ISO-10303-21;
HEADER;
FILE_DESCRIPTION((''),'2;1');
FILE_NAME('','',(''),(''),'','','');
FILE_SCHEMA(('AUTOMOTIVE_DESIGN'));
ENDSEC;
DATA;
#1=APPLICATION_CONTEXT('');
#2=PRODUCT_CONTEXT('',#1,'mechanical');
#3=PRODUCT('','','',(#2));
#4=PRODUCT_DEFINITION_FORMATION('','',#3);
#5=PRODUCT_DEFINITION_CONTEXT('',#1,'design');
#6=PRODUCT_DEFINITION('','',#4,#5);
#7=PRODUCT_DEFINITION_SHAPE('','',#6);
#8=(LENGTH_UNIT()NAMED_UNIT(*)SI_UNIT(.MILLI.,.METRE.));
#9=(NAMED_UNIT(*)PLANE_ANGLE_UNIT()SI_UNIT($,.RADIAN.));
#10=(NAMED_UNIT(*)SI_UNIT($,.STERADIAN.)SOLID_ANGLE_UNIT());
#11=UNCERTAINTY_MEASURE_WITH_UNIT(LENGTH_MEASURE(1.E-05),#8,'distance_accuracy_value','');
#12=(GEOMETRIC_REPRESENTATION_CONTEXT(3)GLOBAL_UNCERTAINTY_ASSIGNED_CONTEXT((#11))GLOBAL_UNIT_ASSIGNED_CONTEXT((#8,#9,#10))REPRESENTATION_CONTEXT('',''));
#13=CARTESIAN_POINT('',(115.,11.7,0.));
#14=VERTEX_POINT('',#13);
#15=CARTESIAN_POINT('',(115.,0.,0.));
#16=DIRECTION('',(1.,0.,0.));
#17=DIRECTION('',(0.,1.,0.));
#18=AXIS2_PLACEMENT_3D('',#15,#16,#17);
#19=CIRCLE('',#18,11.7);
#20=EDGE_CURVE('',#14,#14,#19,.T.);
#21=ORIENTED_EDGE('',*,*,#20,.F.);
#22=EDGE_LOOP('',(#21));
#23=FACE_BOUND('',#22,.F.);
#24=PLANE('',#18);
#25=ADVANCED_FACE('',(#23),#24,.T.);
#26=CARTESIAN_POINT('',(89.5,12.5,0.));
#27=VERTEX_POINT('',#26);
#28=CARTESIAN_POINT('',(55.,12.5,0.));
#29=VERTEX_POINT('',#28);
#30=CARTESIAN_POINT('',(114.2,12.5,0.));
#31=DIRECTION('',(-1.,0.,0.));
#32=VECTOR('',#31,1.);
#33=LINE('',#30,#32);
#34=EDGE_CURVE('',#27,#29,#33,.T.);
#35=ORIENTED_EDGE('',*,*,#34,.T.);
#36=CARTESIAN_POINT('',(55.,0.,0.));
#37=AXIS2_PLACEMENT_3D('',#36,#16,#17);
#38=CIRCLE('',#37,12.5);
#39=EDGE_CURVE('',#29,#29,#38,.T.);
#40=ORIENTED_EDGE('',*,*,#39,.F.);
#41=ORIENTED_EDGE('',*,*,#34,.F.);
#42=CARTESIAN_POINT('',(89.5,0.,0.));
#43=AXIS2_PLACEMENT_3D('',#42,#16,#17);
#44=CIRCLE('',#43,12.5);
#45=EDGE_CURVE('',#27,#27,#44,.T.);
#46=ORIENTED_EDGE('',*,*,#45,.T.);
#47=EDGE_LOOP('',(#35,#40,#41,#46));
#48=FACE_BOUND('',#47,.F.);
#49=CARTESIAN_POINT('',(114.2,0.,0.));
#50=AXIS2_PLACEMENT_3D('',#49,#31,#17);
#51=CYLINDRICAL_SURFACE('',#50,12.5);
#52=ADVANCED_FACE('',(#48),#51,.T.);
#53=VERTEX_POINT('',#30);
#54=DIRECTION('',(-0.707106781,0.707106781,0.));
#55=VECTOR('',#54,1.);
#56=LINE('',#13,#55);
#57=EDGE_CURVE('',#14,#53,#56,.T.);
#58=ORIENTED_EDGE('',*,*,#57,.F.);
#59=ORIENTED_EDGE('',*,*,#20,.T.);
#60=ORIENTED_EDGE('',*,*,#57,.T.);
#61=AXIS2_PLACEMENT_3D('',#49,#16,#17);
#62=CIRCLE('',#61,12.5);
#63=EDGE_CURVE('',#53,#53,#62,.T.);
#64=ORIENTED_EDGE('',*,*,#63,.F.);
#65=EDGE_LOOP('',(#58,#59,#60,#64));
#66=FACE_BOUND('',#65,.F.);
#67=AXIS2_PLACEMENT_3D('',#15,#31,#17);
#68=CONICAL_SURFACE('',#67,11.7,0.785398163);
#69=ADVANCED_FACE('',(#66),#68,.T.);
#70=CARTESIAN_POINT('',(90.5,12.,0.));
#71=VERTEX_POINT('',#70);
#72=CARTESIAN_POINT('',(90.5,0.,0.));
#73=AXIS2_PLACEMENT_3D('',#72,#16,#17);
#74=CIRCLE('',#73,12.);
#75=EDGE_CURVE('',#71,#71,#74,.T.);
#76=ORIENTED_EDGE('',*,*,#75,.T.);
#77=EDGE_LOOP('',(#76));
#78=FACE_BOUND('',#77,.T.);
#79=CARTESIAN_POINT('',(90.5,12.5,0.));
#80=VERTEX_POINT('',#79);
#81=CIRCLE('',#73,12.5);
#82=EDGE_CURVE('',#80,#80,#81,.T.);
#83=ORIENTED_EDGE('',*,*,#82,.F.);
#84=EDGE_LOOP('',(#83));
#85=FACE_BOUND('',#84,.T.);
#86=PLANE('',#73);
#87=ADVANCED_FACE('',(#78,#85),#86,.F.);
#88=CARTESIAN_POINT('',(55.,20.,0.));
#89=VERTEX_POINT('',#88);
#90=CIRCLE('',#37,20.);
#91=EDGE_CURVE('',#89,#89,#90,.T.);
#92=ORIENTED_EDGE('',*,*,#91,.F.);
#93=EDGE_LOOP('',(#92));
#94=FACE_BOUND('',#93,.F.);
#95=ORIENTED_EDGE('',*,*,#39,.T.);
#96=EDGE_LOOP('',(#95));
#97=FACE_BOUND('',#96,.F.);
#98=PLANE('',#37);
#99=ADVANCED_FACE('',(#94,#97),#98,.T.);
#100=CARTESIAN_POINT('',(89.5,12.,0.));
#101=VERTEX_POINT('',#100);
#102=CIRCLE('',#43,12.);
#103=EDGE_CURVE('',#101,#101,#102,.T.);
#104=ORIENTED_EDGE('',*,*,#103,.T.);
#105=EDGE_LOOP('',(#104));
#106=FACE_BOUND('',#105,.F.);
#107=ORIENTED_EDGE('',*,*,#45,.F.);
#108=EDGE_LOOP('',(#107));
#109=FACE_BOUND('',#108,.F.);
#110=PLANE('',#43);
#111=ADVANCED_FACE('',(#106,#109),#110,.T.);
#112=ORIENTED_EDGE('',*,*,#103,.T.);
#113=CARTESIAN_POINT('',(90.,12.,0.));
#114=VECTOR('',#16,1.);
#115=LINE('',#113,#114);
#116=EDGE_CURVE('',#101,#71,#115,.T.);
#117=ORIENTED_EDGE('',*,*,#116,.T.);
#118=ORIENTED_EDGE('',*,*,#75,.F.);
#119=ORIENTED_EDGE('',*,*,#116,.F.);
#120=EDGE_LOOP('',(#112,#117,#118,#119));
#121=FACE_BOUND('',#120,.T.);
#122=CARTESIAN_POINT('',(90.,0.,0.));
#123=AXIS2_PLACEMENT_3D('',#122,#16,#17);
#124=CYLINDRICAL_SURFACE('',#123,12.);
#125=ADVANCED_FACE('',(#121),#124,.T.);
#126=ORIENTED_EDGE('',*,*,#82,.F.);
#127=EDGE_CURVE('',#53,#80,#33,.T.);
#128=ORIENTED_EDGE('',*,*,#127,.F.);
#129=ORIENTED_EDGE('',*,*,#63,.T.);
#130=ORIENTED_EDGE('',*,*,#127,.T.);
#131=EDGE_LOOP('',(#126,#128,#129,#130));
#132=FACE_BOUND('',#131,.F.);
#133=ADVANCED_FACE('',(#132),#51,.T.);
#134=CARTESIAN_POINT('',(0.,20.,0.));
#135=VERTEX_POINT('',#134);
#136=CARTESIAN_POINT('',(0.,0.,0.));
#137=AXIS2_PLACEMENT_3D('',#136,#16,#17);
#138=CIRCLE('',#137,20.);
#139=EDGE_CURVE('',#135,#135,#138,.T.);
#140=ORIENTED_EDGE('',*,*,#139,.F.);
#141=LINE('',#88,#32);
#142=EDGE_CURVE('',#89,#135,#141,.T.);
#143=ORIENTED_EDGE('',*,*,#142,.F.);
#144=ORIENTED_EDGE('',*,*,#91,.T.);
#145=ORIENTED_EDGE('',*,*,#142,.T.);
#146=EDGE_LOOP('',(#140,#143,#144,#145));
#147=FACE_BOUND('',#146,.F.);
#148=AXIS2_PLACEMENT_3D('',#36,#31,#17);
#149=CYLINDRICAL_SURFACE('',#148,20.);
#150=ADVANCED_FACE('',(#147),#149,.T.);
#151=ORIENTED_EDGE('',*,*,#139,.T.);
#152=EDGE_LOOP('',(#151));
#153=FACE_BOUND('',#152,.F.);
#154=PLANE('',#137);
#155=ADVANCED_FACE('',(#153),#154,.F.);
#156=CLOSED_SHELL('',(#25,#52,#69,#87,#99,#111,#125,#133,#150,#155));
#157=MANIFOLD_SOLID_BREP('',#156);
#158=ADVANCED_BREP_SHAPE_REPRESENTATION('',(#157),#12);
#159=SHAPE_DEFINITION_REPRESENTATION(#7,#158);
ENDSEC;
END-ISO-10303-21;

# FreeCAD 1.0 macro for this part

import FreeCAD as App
import Part
import Sketcher
from FreeCAD import Vector
Q = App.Units.Quantity


def add_polygon(sketch, points):
    """Adds a closed chain of lines whose ends are joined by coincident constraints."""
    first, n = sketch.GeometryCount, len(points)
    for a, b in zip(points, points[1:] + points[:1]):
        sketch.addGeometry(Part.LineSegment(App.Vector(*a, 0), App.Vector(*b, 0)), False)
    for i in range(n):
        sketch.addConstraint(Sketcher.Constraint("Coincident", first + i, 2, first + (i + 1) % n, 1))

doc = App.newDocument("Part")
body = doc.addObject("PartDesign::Body", "Body")

# Sketch on XY plane
sketch1 = body.newObject("Sketcher::SketchObject", "Sketch")
sketch1.AttachmentSupport = (doc.getObject("XY_Plane"), [""])
sketch1.MapMode = "FlatFace"
add_polygon(sketch1, [(0, 20), (0, 0), (115, 0), (115, 11.7), (114.2, 12.5), (55, 12.5), (55, 20)])  # lines 0-6
sketch1.addConstraint(Sketcher.Constraint("Vertical", 0))
sketch1.addConstraint(Sketcher.Constraint("Horizontal", 1))
sketch1.addConstraint(Sketcher.Constraint("Vertical", 2))
sketch1.addConstraint(Sketcher.Constraint("Horizontal", 4))
sketch1.addConstraint(Sketcher.Constraint("Vertical", 5))
sketch1.addConstraint(Sketcher.Constraint("Horizontal", 6))
sketch1.addConstraint(Sketcher.Constraint("Coincident", 0, 2, -1, 1))
sketch1.addConstraint(Sketcher.Constraint("DistanceX", 1, 1, 1, 2, 115.0))
sketch1.addConstraint(Sketcher.Constraint("DistanceX", 6, 2, 6, 1, 55.0))
sketch1.addConstraint(Sketcher.Constraint("DistanceY", 0, 2, 0, 1, 20.0))
sketch1.addConstraint(Sketcher.Constraint("Angle", 3, Q("135 deg")))
sketch1.addConstraint(Sketcher.Constraint("DistanceX", 4, 2, 4, 1, 59.2))
sketch1.addConstraint(Sketcher.Constraint("DistanceY", 2, 1, 2, 2, 11.7))
revolution = body.newObject("PartDesign::Revolution", "Revolution")
revolution.Profile = sketch1
revolution.ReferenceAxis = (sketch1, ["H_Axis"])
revolution.Angle = 360

# Sketch on XY plane
sketch2 = body.newObject("Sketcher::SketchObject", "Sketch001")
sketch2.AttachmentSupport = (doc.getObject("XY_Plane"), [""])
sketch2.MapMode = "FlatFace"
add_polygon(sketch2, [(89.5, 12.5), (89.5, 12), (90.5, 12), (90.5, 12.5)])  # lines 0-3
sketch2.addConstraint(Sketcher.Constraint("Vertical", 0))
sketch2.addConstraint(Sketcher.Constraint("Horizontal", 1))
sketch2.addConstraint(Sketcher.Constraint("Vertical", 2))
sketch2.addConstraint(Sketcher.Constraint("Horizontal", 3))
sketch2.addConstraint(Sketcher.Constraint("DistanceX", 1, 1, 1, 2, 1.0))
sketch2.addConstraint(Sketcher.Constraint("DistanceY", 0, 2, 0, 1, 0.5))
sketch2.addConstraint(Sketcher.Constraint("DistanceY", -1, 1, 0, 2, 12.0))
sketch2.addConstraint(Sketcher.Constraint("DistanceX", -1, 1, 0, 2, 89.5))
groove = body.newObject("PartDesign::Groove", "Groove")
groove.Profile = sketch2
groove.ReferenceAxis = (sketch2, ["H_Axis"])
groove.Angle = 360

doc.recompute()
